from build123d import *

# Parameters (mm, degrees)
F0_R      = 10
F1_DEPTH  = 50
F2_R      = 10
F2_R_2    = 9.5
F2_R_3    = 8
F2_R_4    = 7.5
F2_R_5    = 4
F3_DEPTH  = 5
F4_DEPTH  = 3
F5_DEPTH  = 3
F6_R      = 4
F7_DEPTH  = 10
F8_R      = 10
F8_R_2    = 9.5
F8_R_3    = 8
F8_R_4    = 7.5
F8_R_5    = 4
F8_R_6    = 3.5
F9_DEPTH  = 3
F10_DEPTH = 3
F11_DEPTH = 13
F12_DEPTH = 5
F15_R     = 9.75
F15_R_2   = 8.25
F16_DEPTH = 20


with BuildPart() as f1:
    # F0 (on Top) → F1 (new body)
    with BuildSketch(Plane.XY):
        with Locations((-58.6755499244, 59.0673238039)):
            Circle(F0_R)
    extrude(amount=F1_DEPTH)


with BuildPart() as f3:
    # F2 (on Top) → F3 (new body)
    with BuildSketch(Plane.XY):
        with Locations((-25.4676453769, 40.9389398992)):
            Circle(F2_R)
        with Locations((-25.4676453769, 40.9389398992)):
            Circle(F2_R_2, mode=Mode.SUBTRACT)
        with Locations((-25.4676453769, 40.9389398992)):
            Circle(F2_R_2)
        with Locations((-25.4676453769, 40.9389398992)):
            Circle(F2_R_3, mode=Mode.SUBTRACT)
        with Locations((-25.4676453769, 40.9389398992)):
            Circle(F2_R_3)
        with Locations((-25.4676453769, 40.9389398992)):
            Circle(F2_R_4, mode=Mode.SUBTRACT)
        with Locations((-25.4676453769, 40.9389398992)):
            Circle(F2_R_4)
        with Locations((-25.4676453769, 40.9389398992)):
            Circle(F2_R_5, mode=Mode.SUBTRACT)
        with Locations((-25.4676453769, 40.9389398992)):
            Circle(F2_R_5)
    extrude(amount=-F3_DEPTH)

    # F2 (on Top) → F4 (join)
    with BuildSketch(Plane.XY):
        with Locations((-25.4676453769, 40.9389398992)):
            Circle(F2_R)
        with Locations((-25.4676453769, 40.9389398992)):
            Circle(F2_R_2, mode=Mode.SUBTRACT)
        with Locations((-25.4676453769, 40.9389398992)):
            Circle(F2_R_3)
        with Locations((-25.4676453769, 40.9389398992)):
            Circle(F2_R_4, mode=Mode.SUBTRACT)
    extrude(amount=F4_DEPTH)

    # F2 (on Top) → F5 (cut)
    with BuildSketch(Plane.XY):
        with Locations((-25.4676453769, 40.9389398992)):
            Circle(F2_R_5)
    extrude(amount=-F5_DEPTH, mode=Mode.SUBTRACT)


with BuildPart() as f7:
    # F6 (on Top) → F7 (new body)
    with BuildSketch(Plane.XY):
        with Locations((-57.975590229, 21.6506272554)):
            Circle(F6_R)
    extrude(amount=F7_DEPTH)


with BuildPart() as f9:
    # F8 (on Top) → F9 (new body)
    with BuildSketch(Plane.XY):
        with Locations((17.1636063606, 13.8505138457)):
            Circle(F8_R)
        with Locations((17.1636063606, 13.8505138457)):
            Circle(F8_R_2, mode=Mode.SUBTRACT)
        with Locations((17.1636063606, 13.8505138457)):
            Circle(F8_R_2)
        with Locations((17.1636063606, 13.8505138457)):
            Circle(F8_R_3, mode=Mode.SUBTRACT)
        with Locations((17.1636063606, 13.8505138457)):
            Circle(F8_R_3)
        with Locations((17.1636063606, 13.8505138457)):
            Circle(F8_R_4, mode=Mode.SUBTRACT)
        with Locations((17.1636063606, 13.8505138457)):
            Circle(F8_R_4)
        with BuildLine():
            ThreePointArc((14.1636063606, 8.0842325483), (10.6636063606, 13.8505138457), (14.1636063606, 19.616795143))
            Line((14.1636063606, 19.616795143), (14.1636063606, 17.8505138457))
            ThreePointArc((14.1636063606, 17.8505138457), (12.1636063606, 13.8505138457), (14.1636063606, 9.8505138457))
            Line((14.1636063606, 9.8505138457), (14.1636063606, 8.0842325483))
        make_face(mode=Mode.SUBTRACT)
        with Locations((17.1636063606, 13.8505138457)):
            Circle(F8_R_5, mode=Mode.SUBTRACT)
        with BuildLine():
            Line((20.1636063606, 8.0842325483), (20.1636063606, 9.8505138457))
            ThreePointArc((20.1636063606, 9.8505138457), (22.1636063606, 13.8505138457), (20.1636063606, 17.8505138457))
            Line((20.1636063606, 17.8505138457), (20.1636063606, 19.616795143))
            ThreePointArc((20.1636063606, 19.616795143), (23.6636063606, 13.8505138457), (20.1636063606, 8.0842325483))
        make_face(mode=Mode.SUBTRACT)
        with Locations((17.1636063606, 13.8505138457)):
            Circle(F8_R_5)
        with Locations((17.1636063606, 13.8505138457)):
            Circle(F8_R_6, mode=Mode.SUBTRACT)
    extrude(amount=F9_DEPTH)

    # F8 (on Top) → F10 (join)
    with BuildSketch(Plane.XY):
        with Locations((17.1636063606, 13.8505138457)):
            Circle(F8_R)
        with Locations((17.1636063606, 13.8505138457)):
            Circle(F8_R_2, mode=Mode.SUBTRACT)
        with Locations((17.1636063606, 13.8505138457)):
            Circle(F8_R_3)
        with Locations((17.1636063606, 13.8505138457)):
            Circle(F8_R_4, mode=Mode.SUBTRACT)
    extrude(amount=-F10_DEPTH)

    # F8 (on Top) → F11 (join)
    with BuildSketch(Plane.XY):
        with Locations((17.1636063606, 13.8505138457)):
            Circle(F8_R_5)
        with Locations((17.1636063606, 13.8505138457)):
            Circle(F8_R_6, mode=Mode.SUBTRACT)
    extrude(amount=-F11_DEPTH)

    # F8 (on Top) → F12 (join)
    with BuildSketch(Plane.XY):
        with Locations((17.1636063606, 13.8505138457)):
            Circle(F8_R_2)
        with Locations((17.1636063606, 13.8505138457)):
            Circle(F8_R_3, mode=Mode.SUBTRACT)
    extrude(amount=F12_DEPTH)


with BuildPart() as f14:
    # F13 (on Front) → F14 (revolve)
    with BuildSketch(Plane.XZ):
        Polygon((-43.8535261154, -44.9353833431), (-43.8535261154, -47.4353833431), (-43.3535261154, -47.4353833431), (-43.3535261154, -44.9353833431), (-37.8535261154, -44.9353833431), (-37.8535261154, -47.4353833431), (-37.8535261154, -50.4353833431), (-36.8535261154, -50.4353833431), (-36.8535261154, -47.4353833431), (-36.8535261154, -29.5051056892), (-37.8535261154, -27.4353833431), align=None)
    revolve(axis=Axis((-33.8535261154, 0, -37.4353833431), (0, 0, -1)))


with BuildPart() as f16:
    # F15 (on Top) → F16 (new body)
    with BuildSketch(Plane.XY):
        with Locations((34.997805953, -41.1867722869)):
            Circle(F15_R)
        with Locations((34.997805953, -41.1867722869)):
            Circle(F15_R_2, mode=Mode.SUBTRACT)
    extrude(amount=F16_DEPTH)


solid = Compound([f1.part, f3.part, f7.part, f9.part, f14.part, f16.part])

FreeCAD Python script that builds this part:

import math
import FreeCAD as App
import Part
import Sketcher

V = App.Vector
Q = App.Units.Quantity


def add_polygon(sketch, points):
    """Adds a closed chain of lines whose ends are joined by coincident constraints."""
    first, n = sketch.GeometryCount, len(points)
    for a, b in zip(points, points[1:] + points[:1]):
        sketch.addGeometry(Part.LineSegment(App.Vector(*a, 0), App.Vector(*b, 0)), False)
    for i in range(n):
        sketch.addConstraint(Sketcher.Constraint("Coincident", first + i, 2, first + (i + 1) % n, 1))

doc = App.newDocument("Part")
params = doc.addObject("Spreadsheet::Sheet", "Params")
for row, (alias, value) in enumerate([
    ("sketch1_diameter", "20 mm"),
    ("pad1_length", "50 mm"),
    ("sketch2_diameter", "20 mm"),
    ("pad2_length", "5 mm"),
    ("sketch3_diameter", "20 mm"),
    ("sketch3_diameter2", "19 mm"),
    ("sketch3_diameter3", "16 mm"),
    ("sketch3_diameter4", "15 mm"),
    ("pad3_length", "3 mm"),
    ("sketch4_diameter", "8 mm"),
    ("pocket1_length", "3 mm"),
    ("sketch5_diameter", "8 mm"),
    ("pad4_length", "10 mm"),
    ("sketch6_diameter", "20 mm"),
    ("sketch6_diameter2", "7 mm"),
    ("sketch6_radius", "5 mm"),
    ("sketch6_radius2", "6.5 mm"),
    ("pad5_length", "3 mm"),
    ("sketch7_diameter", "20 mm"),
    ("sketch7_diameter2", "19 mm"),
    ("sketch7_diameter3", "16 mm"),
    ("sketch7_diameter4", "15 mm"),
    ("pad6_length", "3 mm"),
    ("sketch8_diameter", "8 mm"),
    ("sketch8_diameter2", "7 mm"),
    ("pad7_length", "13 mm"),
    ("sketch9_diameter", "19 mm"),
    ("sketch9_diameter2", "16 mm"),
    ("pad8_length", "5 mm"),
    ("sketch10_width", "1 mm"),
    ("sketch10_height", "23 mm"),
    ("sketch10_width2", "0.5 mm"),
    ("sketch10_width3", "5.5 mm"),
    ("sketch10_height2", "2.5 mm"),
    ("revolution_angle", "360 deg"),
    ("sketch11_diameter", "19.5 mm"),
    ("sketch11_diameter2", "16.5 mm"),
    ("pad9_length", "20 mm"),
], start=1):
    params.set(f"A{row}", alias)
    params.set(f"B{row}", "=" + value)
    params.setAlias(f"B{row}", alias)

body = doc.addObject("PartDesign::Body", "Body")

sketch1 = body.newObject("Sketcher::SketchObject", "Sketch")
sketch1.AttachmentSupport = (doc.getObject("XY_Plane"), [""])
sketch1.MapMode = "FlatFace"
sketch1.addGeometry(Part.Circle(V(-59, 59, 0), V(0, 0, 1), 10), False)
sketch1.addConstraint(Sketcher.Constraint("Diameter", 0, Q("20 mm")))
sketch1.addConstraint(Sketcher.Constraint("DistanceX", 0, 3, -1, 1, Q("58.67555 mm")))
sketch1.addConstraint(Sketcher.Constraint("DistanceY", -1, 1, 0, 3, Q("59.067324 mm")))
sketch1.setExpression("Constraints[0]", "Params.sketch1_diameter")
pad1 = body.newObject("PartDesign::Pad", "Pad")
pad1.Profile = sketch1
pad1.setExpression("Length", "Params.pad1_length")
body2 = doc.addObject("PartDesign::Body", "Body001")

sketch2 = body2.newObject("Sketcher::SketchObject", "Sketch001")
sketch2.AttachmentSupport = (doc.getObject("XY_Plane001"), [""])
sketch2.MapMode = "FlatFace"
sketch2.addGeometry(Part.Circle(V(-25, 41, 0), V(0, 0, 1), 10), False)
sketch2.addConstraint(Sketcher.Constraint("Diameter", 0, Q("20 mm")))
sketch2.addConstraint(Sketcher.Constraint("DistanceY", -1, 1, 0, 3, Q("40.93894 mm")))
sketch2.addConstraint(Sketcher.Constraint("DistanceX", 0, 3, -1, 1, Q("25.467645 mm")))
sketch2.setExpression("Constraints[0]", "Params.sketch2_diameter")
pad2 = body2.newObject("PartDesign::Pad", "Pad001")
pad2.Profile = sketch2
pad2.setExpression("Length", "Params.pad2_length")
pad2.Reversed = True

sketch3 = body2.newObject("Sketcher::SketchObject", "Sketch002")
sketch3.AttachmentSupport = (doc.getObject("XY_Plane001"), [""])
sketch3.MapMode = "FlatFace"
sketch3.addGeometry(Part.Circle(V(-25, 41, 0), V(0, 0, 1), 10), False)
sketch3.addGeometry(Part.Circle(V(-25, 41, 0), V(0, 0, 1), 10), False)
sketch3.addGeometry(Part.Circle(V(-25, 41, 0), V(0, 0, 1), 8), False)
sketch3.addGeometry(Part.Circle(V(-25, 41, 0), V(0, 0, 1), 8), False)
sketch3.addConstraint(Sketcher.Constraint("Coincident", 1, 3, 0, 3))
sketch3.addConstraint(Sketcher.Constraint("Coincident", 2, 3, 0, 3))
sketch3.addConstraint(Sketcher.Constraint("Coincident", 3, 3, 0, 3))
sketch3.addConstraint(Sketcher.Constraint("Diameter", 0, Q("20 mm")))
sketch3.addConstraint(Sketcher.Constraint("Diameter", 1, Q("19 mm")))
sketch3.addConstraint(Sketcher.Constraint("Diameter", 2, Q("16 mm")))
sketch3.addConstraint(Sketcher.Constraint("Diameter", 3, Q("15 mm")))
sketch3.addConstraint(Sketcher.Constraint("DistanceY", -1, 1, 0, 3, Q("40.93894 mm")))
sketch3.addConstraint(Sketcher.Constraint("DistanceX", 0, 3, -1, 1, Q("25.467645 mm")))
sketch3.setExpression("Constraints[3]", "Params.sketch3_diameter")
sketch3.setExpression("Constraints[4]", "Params.sketch3_diameter2")
sketch3.setExpression("Constraints[5]", "Params.sketch3_diameter3")
sketch3.setExpression("Constraints[6]", "Params.sketch3_diameter4")
pad3 = body2.newObject("PartDesign::Pad", "Pad002")
pad3.Profile = sketch3
pad3.setExpression("Length", "Params.pad3_length")

sketch4 = body2.newObject("Sketcher::SketchObject", "Sketch003")
sketch4.AttachmentSupport = (doc.getObject("XY_Plane001"), [""])
sketch4.MapMode = "FlatFace"
sketch4.addGeometry(Part.Circle(V(-25.5, 40.9, 0), V(0, 0, 1), 4), False)
sketch4.addConstraint(Sketcher.Constraint("Diameter", 0, Q("8 mm")))
sketch4.addConstraint(Sketcher.Constraint("DistanceY", -1, 1, 0, 3, Q("40.93894 mm")))
sketch4.addConstraint(Sketcher.Constraint("DistanceX", 0, 3, -1, 1, Q("25.467645 mm")))
sketch4.setExpression("Constraints[0]", "Params.sketch4_diameter")
pocket1 = body2.newObject("PartDesign::Pocket", "Pocket")
pocket1.Profile = sketch4
pocket1.setExpression("Length", "Params.pocket1_length")
body3 = doc.addObject("PartDesign::Body", "Body002")

sketch5 = body3.newObject("Sketcher::SketchObject", "Sketch004")
sketch5.AttachmentSupport = (doc.getObject("XY_Plane002"), [""])
sketch5.MapMode = "FlatFace"
sketch5.addGeometry(Part.Circle(V(-58, 21.7, 0), V(0, 0, 1), 4), False)
sketch5.addConstraint(Sketcher.Constraint("Diameter", 0, Q("8 mm")))
sketch5.addConstraint(Sketcher.Constraint("DistanceX", 0, 3, -1, 1, Q("57.97559 mm")))
sketch5.addConstraint(Sketcher.Constraint("DistanceY", -1, 1, 0, 3, Q("21.650627 mm")))
sketch5.setExpression("Constraints[0]", "Params.sketch5_diameter")
pad4 = body3.newObject("PartDesign::Pad", "Pad003")
pad4.Profile = sketch5
pad4.setExpression("Length", "Params.pad4_length")
body4 = doc.addObject("PartDesign::Body", "Body003")

sketch6 = body4.newObject("Sketcher::SketchObject", "Sketch005")
sketch6.AttachmentSupport = (doc.getObject("XY_Plane003"), [""])
sketch6.MapMode = "FlatFace"
sketch6.addGeometry(Part.Circle(V(17.2, 13.9, 0), V(0, 0, 1), 10), False)
sketch6.addGeometry(Part.LineSegment(V(14.2, 9.9, 0), V(14.2, 8.1, 0)), False)
sketch6.addGeometry(Part.ArcOfCircle(Part.Circle(V(17.2, 13.9, 0), V(0, 0, 1), 6.5), math.radians(117), math.radians(243)), False)
sketch6.addGeometry(Part.LineSegment(V(14.2, 19.6, 0), V(14.2, 17.9, 0)), False)
sketch6.addGeometry(Part.ArcOfCircle(Part.Circle(V(17.2, 13.9, 0), V(0, 0, 1), 5), math.radians(127), math.radians(233)), False)
sketch6.addGeometry(Part.Circle(V(17.2, 13.9, 0), V(0, 0, 1), 3.5), False)
sketch6.addGeometry(Part.ArcOfCircle(Part.Circle(V(17.2, 13.9, 0), V(0, 0, 1), 6.5), math.radians(-63), math.radians(63)), False)
sketch6.addGeometry(Part.LineSegment(V(20.2, 8.1, 0), V(20.2, 9.9, 0)), False)
sketch6.addGeometry(Part.ArcOfCircle(Part.Circle(V(17.2, 13.9, 0), V(0, 0, 1), 5), math.radians(-53), math.radians(53)), False)
sketch6.addGeometry(Part.LineSegment(V(20.2, 17.9, 0), V(20.2, 19.6, 0)), False)
sketch6.addConstraint(Sketcher.Constraint("Coincident", 1, 2, 2, 2))
sketch6.addConstraint(Sketcher.Constraint("Coincident", 2, 1, 3, 1))
sketch6.addConstraint(Sketcher.Constraint("Coincident", 3, 2, 4, 1))
sketch6.addConstraint(Sketcher.Constraint("Coincident", 4, 2, 1, 1))
sketch6.addConstraint(Sketcher.Constraint("Coincident", 6, 1, 7, 1))
sketch6.addConstraint(Sketcher.Constraint("Coincident", 7, 2, 8, 1))
sketch6.addConstraint(Sketcher.Constraint("Coincident", 8, 2, 9, 1))
sketch6.addConstraint(Sketcher.Constraint("Coincident", 9, 2, 6, 2))
sketch6.addConstraint(Sketcher.Constraint("Vertical", 1))
sketch6.addConstraint(Sketcher.Constraint("Vertical", 3))
sketch6.addConstraint(Sketcher.Constraint("Vertical", 7))
sketch6.addConstraint(Sketcher.Constraint("Vertical", 9))
sketch6.addConstraint(Sketcher.Constraint("Coincident", 2, 3, 0, 3))
sketch6.addConstraint(Sketcher.Constraint("Coincident", 4, 3, 0, 3))
sketch6.addConstraint(Sketcher.Constraint("Coincident", 5, 3, 0, 3))
sketch6.addConstraint(Sketcher.Constraint("Coincident", 6, 3, 0, 3))
sketch6.addConstraint(Sketcher.Constraint("Coincident", 8, 3, 0, 3))
sketch6.addConstraint(Sketcher.Constraint("Equal", 2, 6))
sketch6.addConstraint(Sketcher.Constraint("Equal", 4, 8))
sketch6.addConstraint(Sketcher.Constraint("Horizontal", 1, 2, 6, 1))
sketch6.addConstraint(Sketcher.Constraint("Horizontal", 3, 2, 8, 2))
sketch6.addConstraint(Sketcher.Constraint("Vertical", 1, 2, 2, 1))
sketch6.addConstraint(Sketcher.Constraint("Diameter", 0, Q("20 mm")))
sketch6.addConstraint(Sketcher.Constraint("Diameter", 5, Q("7 mm")))
sketch6.addConstraint(Sketcher.Constraint("Radius", 4, Q("5 mm")))
sketch6.addConstraint(Sketcher.Constraint("Radius", 2, Q("6.5 mm")))
sketch6.addConstraint(Sketcher.Constraint("DistanceX", 1, 2, 0, 3, Q("3 mm")))
sketch6.addConstraint(Sketcher.Constraint("DistanceX", -1, 1, 0, 3, Q("17.163606 mm")))
sketch6.addConstraint(Sketcher.Constraint("DistanceY", -1, 1, 0, 3, Q("13.850514 mm")))
sketch6.setExpression("Constraints[22]", "Params.sketch6_diameter")
sketch6.setExpression("Constraints[23]", "Params.sketch6_diameter2")
sketch6.setExpression("Constraints[24]", "Params.sketch6_radius")
sketch6.setExpression("Constraints[25]", "Params.sketch6_radius2")
pad5 = body4.newObject("PartDesign::Pad", "Pad004")
pad5.Profile = sketch6
pad5.setExpression("Length", "Params.pad5_length")

sketch7 = body4.newObject("Sketcher::SketchObject", "Sketch006")
sketch7.AttachmentSupport = (doc.getObject("XY_Plane003"), [""])
sketch7.MapMode = "FlatFace"
sketch7.addGeometry(Part.Circle(V(17, 14, 0), V(0, 0, 1), 10), False)
sketch7.addGeometry(Part.Circle(V(17, 14, 0), V(0, 0, 1), 10), False)
sketch7.addGeometry(Part.Circle(V(17, 14, 0), V(0, 0, 1), 8), False)
sketch7.addGeometry(Part.Circle(V(17, 14, 0), V(0, 0, 1), 8), False)
sketch7.addConstraint(Sketcher.Constraint("Coincident", 1, 3, 0, 3))
sketch7.addConstraint(Sketcher.Constraint("Coincident", 2, 3, 0, 3))
sketch7.addConstraint(Sketcher.Constraint("Coincident", 3, 3, 0, 3))
sketch7.addConstraint(Sketcher.Constraint("Diameter", 0, Q("20 mm")))
sketch7.addConstraint(Sketcher.Constraint("Diameter", 1, Q("19 mm")))
sketch7.addConstraint(Sketcher.Constraint("Diameter", 2, Q("16 mm")))
sketch7.addConstraint(Sketcher.Constraint("Diameter", 3, Q("15 mm")))
sketch7.addConstraint(Sketcher.Constraint("DistanceX", -1, 1, 0, 3, Q("17.163606 mm")))
sketch7.addConstraint(Sketcher.Constraint("DistanceY", -1, 1, 0, 3, Q("13.850514 mm")))
sketch7.setExpression("Constraints[3]", "Params.sketch7_diameter")
sketch7.setExpression("Constraints[4]", "Params.sketch7_diameter2")
sketch7.setExpression("Constraints[5]", "Params.sketch7_diameter3")
sketch7.setExpression("Constraints[6]", "Params.sketch7_diameter4")
pad6 = body4.newObject("PartDesign::Pad", "Pad005")
pad6.Profile = sketch7
pad6.setExpression("Length", "Params.pad6_length")
pad6.Reversed = True

sketch8 = body4.newObject("Sketcher::SketchObject", "Sketch007")
sketch8.AttachmentSupport = (doc.getObject("XY_Plane003"), [""])
sketch8.MapMode = "FlatFace"
sketch8.addGeometry(Part.Circle(V(17.2, 13.9, 0), V(0, 0, 1), 4), False)
sketch8.addGeometry(Part.Circle(V(17.2, 13.9, 0), V(0, 0, 1), 3.5), False)
sketch8.addConstraint(Sketcher.Constraint("Coincident", 1, 3, 0, 3))
sketch8.addConstraint(Sketcher.Constraint("Diameter", 0, Q("8 mm")))
sketch8.addConstraint(Sketcher.Constraint("Diameter", 1, Q("7 mm")))
sketch8.addConstraint(Sketcher.Constraint("DistanceX", -1, 1, 0, 3, Q("17.163606 mm")))
sketch8.addConstraint(Sketcher.Constraint("DistanceY", -1, 1, 0, 3, Q("13.850514 mm")))
sketch8.setExpression("Constraints[1]", "Params.sketch8_diameter")
sketch8.setExpression("Constraints[2]", "Params.sketch8_diameter2")
pad7 = body4.newObject("PartDesign::Pad", "Pad006")
pad7.Profile = sketch8
pad7.setExpression("Length", "Params.pad7_length")
pad7.Reversed = True

sketch9 = body4.newObject("Sketcher::SketchObject", "Sketch008")
sketch9.AttachmentSupport = (doc.getObject("XY_Plane003"), [""])
sketch9.MapMode = "FlatFace"
sketch9.addGeometry(Part.Circle(V(17, 14, 0), V(0, 0, 1), 10), False)
sketch9.addGeometry(Part.Circle(V(17, 14, 0), V(0, 0, 1), 8), False)
sketch9.addConstraint(Sketcher.Constraint("Coincident", 1, 3, 0, 3))
sketch9.addConstraint(Sketcher.Constraint("Diameter", 0, Q("19 mm")))
sketch9.addConstraint(Sketcher.Constraint("Diameter", 1, Q("16 mm")))
sketch9.addConstraint(Sketcher.Constraint("DistanceX", -1, 1, 0, 3, Q("17.163606 mm")))
sketch9.addConstraint(Sketcher.Constraint("DistanceY", -1, 1, 0, 3, Q("13.850514 mm")))
sketch9.setExpression("Constraints[1]", "Params.sketch9_diameter")
sketch9.setExpression("Constraints[2]", "Params.sketch9_diameter2")
pad8 = body4.newObject("PartDesign::Pad", "Pad007")
pad8.Profile = sketch9
pad8.setExpression("Length", "Params.pad8_length")
body5 = doc.addObject("PartDesign::Body", "Body004")

sketch10 = body5.newObject("Sketcher::SketchObject", "Sketch009")
sketch10.AttachmentSupport = (doc.getObject("XZ_Plane004"), [""])
sketch10.MapMode = "FlatFace"
add_polygon(sketch10, [(-43.9, -44.9), (-43.9, -47.4), (-43.4, -47.4), (-43.4, -44.9), (-37.9, -44.9), (-37.9, -50.4), (-36.9, -50.4), (-36.9, -29.5), (-37.9, -27.4)])
sketch10.addGeometry(Part.LineSegment(V(-33.9, -27.4, 0), V(-33.9, -50.4, 0)), True)
sketch10.addConstraint(Sketcher.Constraint("Vertical", 0))
sketch10.addConstraint(Sketcher.Constraint("Horizontal", 1))
sketch10.addConstraint(Sketcher.Constraint("Vertical", 2))
sketch10.addConstraint(Sketcher.Constraint("Horizontal", 3))
sketch10.addConstraint(Sketcher.Constraint("Vertical", 4))
sketch10.addConstraint(Sketcher.Constraint("Horizontal", 5))
sketch10.addConstraint(Sketcher.Constraint("Vertical", 6))
sketch10.addConstraint(Sketcher.Constraint("Vertical", 9))
sketch10.addConstraint(Sketcher.Constraint("Horizontal", 3, 2, 8, 2))
sketch10.addConstraint(Sketcher.Constraint("Horizontal", 7, 2, 9, 1))
sketch10.addConstraint(Sketcher.Constraint("Horizontal", 5, 2, 9, 2))
sketch10.addConstraint(Sketcher.Constraint("Vertical", 4, 2, 7, 2))
sketch10.addConstraint(Sketcher.Constraint("Equal", 3, 4))
sketch10.addConstraint(Sketcher.Constraint("DistanceX", 5, 1, 5, 2, Q("1 mm")))
sketch10.addConstraint(Sketcher.Constraint("DistanceY", 9, 2, 9, 1, Q("23 mm")))
sketch10.addConstraint(Sketcher.Constraint("DistanceX", 1, 1, 1, 2, Q("0.5 mm")))
sketch10.addConstraint(Sketcher.Constraint("DistanceX", 3, 1, 3, 2, Q("5.5 mm")))
sketch10.addConstraint(Sketcher.Constraint("DistanceY", 0, 2, 0, 1, Q("2.5 mm")))
sketch10.addConstraint(Sketcher.Constraint("DistanceX", 6, 2, 9, 1, Q("3 mm")))
sketch10.addConstraint(Sketcher.Constraint("Distance", 7, Q("2.298641 mm")))
sketch10.addConstraint(Sketcher.Constraint("DistanceX", 0, 2, -1, 1, Q("43.853526 mm")))
sketch10.addConstraint(Sketcher.Constraint("DistanceY", 0, 2, -1, 1, Q("47.435383 mm")))
sketch10.setExpression("Constraints[22]", "Params.sketch10_width")
sketch10.setExpression("Constraints[23]", "Params.sketch10_height")
sketch10.setExpression("Constraints[24]", "Params.sketch10_width2")
sketch10.setExpression("Constraints[25]", "Params.sketch10_width3")
sketch10.setExpression("Constraints[26]", "Params.sketch10_height2")
revolution = body5.newObject("PartDesign::Revolution", "Revolution")
revolution.Profile = sketch10
revolution.ReferenceAxis = (sketch10, ["Axis0"])
revolution.setExpression("Angle", "Params.revolution_angle")
body6 = doc.addObject("PartDesign::Body", "Body005")

sketch11 = body6.newObject("Sketcher::SketchObject", "Sketch010")
sketch11.AttachmentSupport = (doc.getObject("XY_Plane005"), [""])
sketch11.MapMode = "FlatFace"
sketch11.addGeometry(Part.Circle(V(35, -41, 0), V(0, 0, 1), 10), False)
sketch11.addGeometry(Part.Circle(V(35, -41, 0), V(0, 0, 1), 8), False)
sketch11.addConstraint(Sketcher.Constraint("Coincident", 1, 3, 0, 3))
sketch11.addConstraint(Sketcher.Constraint("Diameter", 0, Q("19.5 mm")))
sketch11.addConstraint(Sketcher.Constraint("Diameter", 1, Q("16.5 mm")))
sketch11.addConstraint(Sketcher.Constraint("DistanceX", -1, 1, 0, 3, Q("34.997806 mm")))
sketch11.addConstraint(Sketcher.Constraint("DistanceY", 0, 3, -1, 1, Q("41.186772 mm")))
sketch11.setExpression("Constraints[1]", "Params.sketch11_diameter")
sketch11.setExpression("Constraints[2]", "Params.sketch11_diameter2")
pad9 = body6.newObject("PartDesign::Pad", "Pad008")
pad9.Profile = sketch11
pad9.setExpression("Length", "Params.pad9_length")

doc.recompute()
